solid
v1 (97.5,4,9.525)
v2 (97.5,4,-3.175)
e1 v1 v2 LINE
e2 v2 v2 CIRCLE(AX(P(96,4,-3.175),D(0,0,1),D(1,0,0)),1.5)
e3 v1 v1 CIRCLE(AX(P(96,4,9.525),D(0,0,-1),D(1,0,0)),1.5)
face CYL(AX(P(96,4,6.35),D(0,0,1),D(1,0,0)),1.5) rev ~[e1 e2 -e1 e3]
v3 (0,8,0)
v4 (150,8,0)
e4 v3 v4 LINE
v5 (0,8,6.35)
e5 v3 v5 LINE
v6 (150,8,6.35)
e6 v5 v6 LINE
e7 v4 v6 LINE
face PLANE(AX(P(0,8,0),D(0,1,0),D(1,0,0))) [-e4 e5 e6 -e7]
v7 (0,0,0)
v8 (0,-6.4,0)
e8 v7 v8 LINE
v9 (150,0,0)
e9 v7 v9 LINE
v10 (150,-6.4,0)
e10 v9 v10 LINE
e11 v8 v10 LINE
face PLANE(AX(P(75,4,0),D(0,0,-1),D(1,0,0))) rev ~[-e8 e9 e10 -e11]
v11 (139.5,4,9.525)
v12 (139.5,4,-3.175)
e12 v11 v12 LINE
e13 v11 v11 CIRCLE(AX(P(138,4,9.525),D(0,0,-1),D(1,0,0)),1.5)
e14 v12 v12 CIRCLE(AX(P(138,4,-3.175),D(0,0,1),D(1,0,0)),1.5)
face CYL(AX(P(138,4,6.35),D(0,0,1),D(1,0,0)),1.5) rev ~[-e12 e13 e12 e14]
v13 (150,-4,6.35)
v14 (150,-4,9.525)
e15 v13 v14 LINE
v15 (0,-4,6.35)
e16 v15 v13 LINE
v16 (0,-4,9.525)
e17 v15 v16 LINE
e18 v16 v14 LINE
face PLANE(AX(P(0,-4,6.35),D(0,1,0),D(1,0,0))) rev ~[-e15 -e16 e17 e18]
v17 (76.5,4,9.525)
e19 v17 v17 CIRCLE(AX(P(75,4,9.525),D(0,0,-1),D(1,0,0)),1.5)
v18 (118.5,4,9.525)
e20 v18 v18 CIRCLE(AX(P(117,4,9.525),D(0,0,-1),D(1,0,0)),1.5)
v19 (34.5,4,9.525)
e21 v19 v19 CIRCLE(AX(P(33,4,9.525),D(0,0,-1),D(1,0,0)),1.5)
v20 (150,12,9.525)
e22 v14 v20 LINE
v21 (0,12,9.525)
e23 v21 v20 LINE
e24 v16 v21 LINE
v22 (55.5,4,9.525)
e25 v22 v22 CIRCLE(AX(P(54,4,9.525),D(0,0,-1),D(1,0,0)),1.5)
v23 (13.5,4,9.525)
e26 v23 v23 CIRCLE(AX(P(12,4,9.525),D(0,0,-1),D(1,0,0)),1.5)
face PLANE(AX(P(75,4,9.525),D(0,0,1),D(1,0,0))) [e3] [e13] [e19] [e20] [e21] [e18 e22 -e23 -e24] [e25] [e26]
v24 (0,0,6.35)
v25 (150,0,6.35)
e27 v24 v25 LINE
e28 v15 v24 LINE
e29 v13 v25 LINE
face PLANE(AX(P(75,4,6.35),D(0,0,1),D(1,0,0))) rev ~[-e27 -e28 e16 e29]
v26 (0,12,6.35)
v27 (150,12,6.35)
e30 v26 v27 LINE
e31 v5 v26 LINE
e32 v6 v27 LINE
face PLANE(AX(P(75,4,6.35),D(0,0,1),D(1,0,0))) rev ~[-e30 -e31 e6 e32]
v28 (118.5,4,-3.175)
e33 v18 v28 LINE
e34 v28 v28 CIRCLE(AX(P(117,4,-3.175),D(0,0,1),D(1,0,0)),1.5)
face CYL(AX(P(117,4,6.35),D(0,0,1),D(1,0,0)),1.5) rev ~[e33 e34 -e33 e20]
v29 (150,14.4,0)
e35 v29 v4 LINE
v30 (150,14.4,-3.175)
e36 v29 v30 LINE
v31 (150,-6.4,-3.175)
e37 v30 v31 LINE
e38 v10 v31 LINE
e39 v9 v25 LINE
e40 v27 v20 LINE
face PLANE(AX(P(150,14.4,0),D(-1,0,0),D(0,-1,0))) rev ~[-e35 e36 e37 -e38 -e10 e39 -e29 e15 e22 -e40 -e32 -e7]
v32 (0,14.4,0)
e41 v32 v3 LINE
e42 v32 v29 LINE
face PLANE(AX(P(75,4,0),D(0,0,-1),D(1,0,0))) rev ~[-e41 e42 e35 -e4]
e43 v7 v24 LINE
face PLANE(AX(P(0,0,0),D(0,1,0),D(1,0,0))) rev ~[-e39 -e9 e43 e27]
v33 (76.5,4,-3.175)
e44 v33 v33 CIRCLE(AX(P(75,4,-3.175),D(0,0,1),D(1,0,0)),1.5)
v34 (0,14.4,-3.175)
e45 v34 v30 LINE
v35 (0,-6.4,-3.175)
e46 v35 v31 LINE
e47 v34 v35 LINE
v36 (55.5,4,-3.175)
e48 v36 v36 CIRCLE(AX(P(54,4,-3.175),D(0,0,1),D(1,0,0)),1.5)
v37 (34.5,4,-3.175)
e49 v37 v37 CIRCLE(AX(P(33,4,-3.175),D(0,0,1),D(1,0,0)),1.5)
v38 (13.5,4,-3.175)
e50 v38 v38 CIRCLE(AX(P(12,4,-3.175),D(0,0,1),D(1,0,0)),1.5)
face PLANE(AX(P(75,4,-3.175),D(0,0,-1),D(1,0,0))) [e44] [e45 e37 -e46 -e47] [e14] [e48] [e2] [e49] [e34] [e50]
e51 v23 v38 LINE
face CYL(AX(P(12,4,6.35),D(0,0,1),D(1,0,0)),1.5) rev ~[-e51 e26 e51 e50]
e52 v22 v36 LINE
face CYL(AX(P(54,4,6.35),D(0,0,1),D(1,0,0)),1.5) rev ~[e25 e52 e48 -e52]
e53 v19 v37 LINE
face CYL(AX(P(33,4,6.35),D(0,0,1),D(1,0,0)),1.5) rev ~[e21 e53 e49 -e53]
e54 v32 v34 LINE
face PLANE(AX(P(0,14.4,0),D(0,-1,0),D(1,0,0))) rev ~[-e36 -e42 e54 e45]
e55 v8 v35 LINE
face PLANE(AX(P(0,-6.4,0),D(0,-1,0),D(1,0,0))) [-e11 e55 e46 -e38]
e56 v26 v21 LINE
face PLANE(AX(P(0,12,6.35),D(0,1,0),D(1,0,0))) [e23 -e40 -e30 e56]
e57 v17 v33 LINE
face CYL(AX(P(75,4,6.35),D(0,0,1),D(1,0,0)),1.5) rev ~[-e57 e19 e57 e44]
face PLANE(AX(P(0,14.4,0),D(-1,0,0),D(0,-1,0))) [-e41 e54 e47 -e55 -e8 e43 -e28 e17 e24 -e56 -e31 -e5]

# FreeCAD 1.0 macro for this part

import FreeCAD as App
import Part
import Sketcher
Q = App.Units.Quantity


def add_polygon(sketch, points):
    """Adds a closed chain of lines whose ends are joined by coincident constraints."""
    first, n = sketch.GeometryCount, len(points)
    for a, b in zip(points, points[1:] + points[:1]):
        sketch.addGeometry(Part.LineSegment(App.Vector(*a, 0), App.Vector(*b, 0)), False)
    for i in range(n):
        sketch.addConstraint(Sketcher.Constraint("Coincident", first + i, 2, first + (i + 1) % n, 1))

doc = App.newDocument("Part")
body = doc.addObject("PartDesign::Body", "Body")

sketch1 = body.newObject("Sketcher::SketchObject", "Sketch")
sketch1.AttachmentSupport = (doc.getObject("XY_Plane"), [""])
sketch1.MapMode = "FlatFace"
add_polygon(sketch1, [(0, 8), (0, 0), (150, 0), (150, 8)])
sketch1.addConstraint(Sketcher.Constraint("Vertical", 0))
sketch1.addConstraint(Sketcher.Constraint("Horizontal", 1))
sketch1.addConstraint(Sketcher.Constraint("Vertical", 2))
sketch1.addConstraint(Sketcher.Constraint("Horizontal", 3))
sketch1.addConstraint(Sketcher.Constraint("Coincident", 0, 2, -1, 1))
sketch1.addConstraint(Sketcher.Constraint("DistanceX", 1, 1, 1, 2, Q("150 mm")))
sketch1.addConstraint(Sketcher.Constraint("DistanceY", 0, 2, 0, 1, Q("8 mm")))
pad1 = body.newObject("PartDesign::Pad", "Pad")
pad1.Profile = sketch1
pad1.Length = 6.35

sketch2 = body.newObject("Sketcher::SketchObject", "Sketch001")
sketch2.AttachmentSupport = (doc.getObject("XY_Plane"), [""])
sketch2.MapMode = "FlatFace"
sketch2.AttachmentOffset = App.Placement(App.Vector(0, 0, 6.35), App.Rotation())
add_polygon(sketch2, [(0, 12), (0, -4), (150, -4), (150, 12)])
sketch2.addConstraint(Sketcher.Constraint("Vertical", 0))
sketch2.addConstraint(Sketcher.Constraint("Horizontal", 1))
sketch2.addConstraint(Sketcher.Constraint("Vertical", 2))
sketch2.addConstraint(Sketcher.Constraint("Horizontal", 3))
sketch2.addConstraint(Sketcher.Constraint("PointOnObject", 0, 2, -2))
sketch2.addConstraint(Sketcher.Constraint("DistanceX", 1, 1, 1, 2, Q("150 mm")))
sketch2.addConstraint(Sketcher.Constraint("DistanceY", 0, 2, 0, 1, Q("16 mm")))
sketch2.addConstraint(Sketcher.Constraint("DistanceY", 0, 2, -1, 1, Q("4 mm")))
pad2 = body.newObject("PartDesign::Pad", "Pad001")
pad2.Profile = sketch2
pad2.Length = 3.175

sketch3 = body.newObject("Sketcher::SketchObject", "Sketch002")
sketch3.AttachmentSupport = (doc.getObject("XY_Plane"), [""])
sketch3.MapMode = "FlatFace"
add_polygon(sketch3, [(0, -6), (0, 14), (150, 14), (150, -6)])
sketch3.addConstraint(Sketcher.Constraint("Vertical", 0))
sketch3.addConstraint(Sketcher.Constraint("Horizontal", 1))
sketch3.addConstraint(Sketcher.Constraint("Vertical", 2))
sketch3.addConstraint(Sketcher.Constraint("Horizontal", 3))
sketch3.addConstraint(Sketcher.Constraint("PointOnObject", 0, 2, -2))
sketch3.addConstraint(Sketcher.Constraint("DistanceX", 1, 1, 1, 2, Q("150 mm")))
sketch3.addConstraint(Sketcher.Constraint("DistanceY", 0, 1, 0, 2, Q("20.8 mm")))
sketch3.addConstraint(Sketcher.Constraint("DistanceY", -1, 1, 0, 2, Q("14.4 mm")))
pad3 = body.newObject("PartDesign::Pad", "Pad002")
pad3.Profile = sketch3
pad3.Length = 3.175
pad3.Reversed = True

sketch4 = body.newObject("Sketcher::SketchObject", "Sketch003")
sketch4.AttachmentSupport = (doc.getObject("XY_Plane"), [""])
sketch4.MapMode = "FlatFace"
sketch4.AttachmentOffset = App.Placement(App.Vector(0, 0, 6.35), App.Rotation())
sketch4.addGeometry(Part.Circle(App.Vector(12, 4, 0), App.Vector(0, 0, 1), 1.5), False)
sketch4.addGeometry(Part.Circle(App.Vector(33, 4, 0), App.Vector(0, 0, 1), 1.5), False)
sketch4.addGeometry(Part.Circle(App.Vector(54, 4, 0), App.Vector(0, 0, 1), 1.5), False)
sketch4.addGeometry(Part.Circle(App.Vector(75, 4, 0), App.Vector(0, 0, 1), 1.5), False)
sketch4.addGeometry(Part.Circle(App.Vector(96, 4, 0), App.Vector(0, 0, 1), 1.5), False)
sketch4.addGeometry(Part.Circle(App.Vector(117, 4, 0), App.Vector(0, 0, 1), 1.5), False)
sketch4.addGeometry(Part.Circle(App.Vector(138, 4, 0), App.Vector(0, 0, 1), 1.5), False)
sketch4.addConstraint(Sketcher.Constraint("Equal", 0, 1))
sketch4.addConstraint(Sketcher.Constraint("Equal", 1, 2))
sketch4.addConstraint(Sketcher.Constraint("Equal", 2, 3))
sketch4.addConstraint(Sketcher.Constraint("Equal", 3, 4))
sketch4.addConstraint(Sketcher.Constraint("Equal", 4, 5))
sketch4.addConstraint(Sketcher.Constraint("Equal", 5, 6))
sketch4.addConstraint(Sketcher.Constraint("Horizontal", 0, 3, 1, 3))
sketch4.addConstraint(Sketcher.Constraint("Horizontal", 1, 3, 2, 3))
sketch4.addConstraint(Sketcher.Constraint("Horizontal", 2, 3, 3, 3))
sketch4.addConstraint(Sketcher.Constraint("Horizontal", 3, 3, 4, 3))
sketch4.addConstraint(Sketcher.Constraint("Horizontal", 4, 3, 5, 3))
sketch4.addConstraint(Sketcher.Constraint("Horizontal", 5, 3, 6, 3))
sketch4.addConstraint(Sketcher.Constraint("Diameter", 0, Q("3 mm")))
sketch4.addConstraint(Sketcher.Constraint("DistanceX", -1, 1, 0, 3, Q("12 mm")))
sketch4.addConstraint(Sketcher.Constraint("DistanceY", -1, 1, 0, 3, Q("4 mm")))
sketch4.addConstraint(Sketcher.Constraint("DistanceX", -1, 1, 1, 3, Q("33 mm")))
sketch4.addConstraint(Sketcher.Constraint("DistanceX", -1, 1, 2, 3, Q("54 mm")))
sketch4.addConstraint(Sketcher.Constraint("DistanceX", -1, 1, 3, 3, Q("75 mm")))
sketch4.addConstraint(Sketcher.Constraint("DistanceX", -1, 1, 4, 3, Q("96 mm")))
sketch4.addConstraint(Sketcher.Constraint("DistanceX", -1, 1, 5, 3, Q("117 mm")))
sketch4.addConstraint(Sketcher.Constraint("DistanceX", -1, 1, 6, 3, Q("138 mm")))
pocket1 = body.newObject("PartDesign::Pocket", "Pocket")
pocket1.Profile = sketch4
pocket1.Type = "ThroughAll"
pocket1.Midplane = True

doc.recompute()
